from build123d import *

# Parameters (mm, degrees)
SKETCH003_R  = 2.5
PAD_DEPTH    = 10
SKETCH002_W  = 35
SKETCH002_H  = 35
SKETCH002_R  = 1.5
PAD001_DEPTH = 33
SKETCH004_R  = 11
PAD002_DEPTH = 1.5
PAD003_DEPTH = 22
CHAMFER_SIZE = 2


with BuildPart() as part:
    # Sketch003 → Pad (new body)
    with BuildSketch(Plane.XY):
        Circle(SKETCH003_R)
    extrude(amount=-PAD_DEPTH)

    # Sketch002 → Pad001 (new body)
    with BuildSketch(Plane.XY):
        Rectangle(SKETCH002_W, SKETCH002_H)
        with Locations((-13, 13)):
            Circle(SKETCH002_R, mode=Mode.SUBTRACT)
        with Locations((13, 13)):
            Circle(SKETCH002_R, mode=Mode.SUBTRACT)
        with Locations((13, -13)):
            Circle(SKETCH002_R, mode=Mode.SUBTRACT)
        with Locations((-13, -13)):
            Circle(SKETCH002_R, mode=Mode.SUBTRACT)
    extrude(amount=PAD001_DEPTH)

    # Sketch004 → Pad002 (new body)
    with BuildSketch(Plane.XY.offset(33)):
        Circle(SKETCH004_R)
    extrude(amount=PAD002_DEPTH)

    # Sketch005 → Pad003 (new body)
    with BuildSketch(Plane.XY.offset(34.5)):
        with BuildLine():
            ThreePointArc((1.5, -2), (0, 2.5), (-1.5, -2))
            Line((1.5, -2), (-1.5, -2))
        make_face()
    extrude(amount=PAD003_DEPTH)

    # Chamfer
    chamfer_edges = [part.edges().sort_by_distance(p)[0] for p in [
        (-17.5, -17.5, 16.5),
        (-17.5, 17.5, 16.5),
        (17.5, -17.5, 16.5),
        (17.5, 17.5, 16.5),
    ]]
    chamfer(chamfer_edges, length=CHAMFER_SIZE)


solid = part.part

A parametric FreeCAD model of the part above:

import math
import FreeCAD as App
import Part
import Sketcher
from FreeCAD import Vector


def edges_at(feature, points):
    """Names of the edges that pass closest to the given points."""
    edges = feature.Shape.Edges
    near = lambda p: min(range(len(edges)), key=lambda i: edges[i].distToShape(Part.Vertex(*p))[0])
    return sorted({f"Edge{near(p) + 1}" for p in points})

doc = App.newDocument("Part")
body = doc.addObject("PartDesign::Body", "Body")

sketch1 = body.newObject("Sketcher::SketchObject", "Sketch")
sketch1.AttachmentSupport = (doc.getObject("XY_Plane"), [""])
sketch1.MapMode = "FlatFace"
sketch1.addGeometry(Part.Circle(Vector(0, 0, 0), Vector(0, 0, 1), 2.5), False)
sketch1.addConstraint(Sketcher.Constraint("Coincident", 0, 3, -1, 1))
sketch1.addConstraint(Sketcher.Constraint("Diameter", 0, 5.0))
pad1 = body.newObject("PartDesign::Pad", "Pad")
pad1.Profile = sketch1
pad1.Length = 10
pad1.Reversed = True

sketch2 = body.newObject("Sketcher::SketchObject", "Sketch001")
sketch2.AttachmentSupport = (doc.getObject("XY_Plane"), [""])
sketch2.MapMode = "FlatFace"
sketch2.addGeometry(Part.LineSegment(Vector(-17.5, 17.5, 0), Vector(-17.5, -17.5, 0)), False)
sketch2.addGeometry(Part.LineSegment(Vector(-17.5, -17.5, 0), Vector(17.5, -17.5, 0)), False)
sketch2.addGeometry(Part.LineSegment(Vector(17.5, -17.5, 0), Vector(17.5, 17.5, 0)), False)
sketch2.addGeometry(Part.LineSegment(Vector(17.5, 17.5, 0), Vector(-17.5, 17.5, 0)), False)
sketch2.addGeometry(Part.Circle(Vector(-13, -13, 0), Vector(0, 0, 1), 1.5), False)
sketch2.addGeometry(Part.Circle(Vector(13, -13, 0), Vector(0, 0, 1), 1.5), False)
sketch2.addGeometry(Part.Circle(Vector(-13, 13, 0), Vector(0, 0, 1), 1.5), False)
sketch2.addGeometry(Part.Circle(Vector(13, 13, 0), Vector(0, 0, 1), 1.5), False)
sketch2.addConstraint(Sketcher.Constraint("Coincident", 0, 2, 1, 1))
sketch2.addConstraint(Sketcher.Constraint("Coincident", 1, 2, 2, 1))
sketch2.addConstraint(Sketcher.Constraint("Coincident", 2, 2, 3, 1))
sketch2.addConstraint(Sketcher.Constraint("Coincident", 3, 2, 0, 1))
sketch2.addConstraint(Sketcher.Constraint("Vertical", 0))
sketch2.addConstraint(Sketcher.Constraint("Horizontal", 1))
sketch2.addConstraint(Sketcher.Constraint("Vertical", 2))
sketch2.addConstraint(Sketcher.Constraint("Horizontal", 3))
sketch2.addConstraint(Sketcher.Constraint("Equal", 4, 5))
sketch2.addConstraint(Sketcher.Constraint("Equal", 5, 6))
sketch2.addConstraint(Sketcher.Constraint("Equal", 6, 7))
sketch2.addConstraint(Sketcher.Constraint("Symmetric", 5, 3, 6, 3, -1, 1))
sketch2.addConstraint(Sketcher.Constraint("Symmetric", 4, 3, 7, 3, -1, 1))
sketch2.addConstraint(Sketcher.Constraint("Symmetric", 0, 2, 2, 2, -1, 1))
sketch2.addConstraint(Sketcher.Constraint("Symmetric", 4, 3, 5, 3, -2))
sketch2.addConstraint(Sketcher.Constraint("Equal", 3, 0))
sketch2.addConstraint(Sketcher.Constraint("Diameter", 4, 3.0))
sketch2.addConstraint(Sketcher.Constraint("DistanceX", 1, 1, 1, 2, 35.0))
sketch2.addConstraint(Sketcher.Constraint("DistanceX", 4, 3, -1, 1, 13.0))
sketch2.addConstraint(Sketcher.Constraint("DistanceY", 4, 3, -1, 1, 13.0))
pad2 = body.newObject("PartDesign::Pad", "Pad001")
pad2.Profile = sketch2
pad2.Length = 33

sketch3 = body.newObject("Sketcher::SketchObject", "Sketch002")
sketch3.AttachmentSupport = (doc.getObject("XY_Plane"), [""])
sketch3.MapMode = "FlatFace"
sketch3.AttachmentOffset = App.Placement(Vector(0, 0, 33), App.Rotation())
sketch3.addGeometry(Part.Circle(Vector(0, 0, 0), Vector(0, 0, 1), 11), False)
sketch3.addConstraint(Sketcher.Constraint("Coincident", 0, 3, -1, 1))
sketch3.addConstraint(Sketcher.Constraint("Diameter", 0, 22.0))
pad3 = body.newObject("PartDesign::Pad", "Pad002")
pad3.Profile = sketch3
pad3.Length = 1.5

sketch4 = body.newObject("Sketcher::SketchObject", "Sketch003")
sketch4.AttachmentSupport = (doc.getObject("XY_Plane"), [""])
sketch4.MapMode = "FlatFace"
sketch4.AttachmentOffset = App.Placement(Vector(0, 0, 34.5), App.Rotation())
sketch4.addGeometry(Part.ArcOfCircle(Part.Circle(Vector(0, 0, 0), Vector(0, 0, 1), 2.5), math.radians(-53), math.radians(233)), False)
sketch4.addGeometry(Part.LineSegment(Vector(-1.5, -2, 0), Vector(1.5, -2, 0)), False)
sketch4.addConstraint(Sketcher.Constraint("Coincident", 0, 1, 1, 2))
sketch4.addConstraint(Sketcher.Constraint("Coincident", 1, 1, 0, 2))
sketch4.addConstraint(Sketcher.Constraint("Horizontal", 1))
sketch4.addConstraint(Sketcher.Constraint("Coincident", 0, 3, -1, 1))
sketch4.addConstraint(Sketcher.Constraint("Radius", 0, 2.5))
sketch4.addConstraint(Sketcher.Constraint("DistanceX", 1, 1, 1, 2, 3.0))
pad4 = body.newObject("PartDesign::Pad", "Pad003")
pad4.Profile = sketch4
pad4.Length = 22
doc.recompute()

chamfer = body.newObject("PartDesign::Chamfer", "Chamfer")
chamfer.Base = (pad4, edges_at(pad4, [
    (-17.5, -17.5, 16.5),
    (-17.5, 17.5, 16.5),
    (17.5, -17.5, 16.5),
    (17.5, 17.5, 16.5),
]))
chamfer.Size = 2

doc.recompute()
